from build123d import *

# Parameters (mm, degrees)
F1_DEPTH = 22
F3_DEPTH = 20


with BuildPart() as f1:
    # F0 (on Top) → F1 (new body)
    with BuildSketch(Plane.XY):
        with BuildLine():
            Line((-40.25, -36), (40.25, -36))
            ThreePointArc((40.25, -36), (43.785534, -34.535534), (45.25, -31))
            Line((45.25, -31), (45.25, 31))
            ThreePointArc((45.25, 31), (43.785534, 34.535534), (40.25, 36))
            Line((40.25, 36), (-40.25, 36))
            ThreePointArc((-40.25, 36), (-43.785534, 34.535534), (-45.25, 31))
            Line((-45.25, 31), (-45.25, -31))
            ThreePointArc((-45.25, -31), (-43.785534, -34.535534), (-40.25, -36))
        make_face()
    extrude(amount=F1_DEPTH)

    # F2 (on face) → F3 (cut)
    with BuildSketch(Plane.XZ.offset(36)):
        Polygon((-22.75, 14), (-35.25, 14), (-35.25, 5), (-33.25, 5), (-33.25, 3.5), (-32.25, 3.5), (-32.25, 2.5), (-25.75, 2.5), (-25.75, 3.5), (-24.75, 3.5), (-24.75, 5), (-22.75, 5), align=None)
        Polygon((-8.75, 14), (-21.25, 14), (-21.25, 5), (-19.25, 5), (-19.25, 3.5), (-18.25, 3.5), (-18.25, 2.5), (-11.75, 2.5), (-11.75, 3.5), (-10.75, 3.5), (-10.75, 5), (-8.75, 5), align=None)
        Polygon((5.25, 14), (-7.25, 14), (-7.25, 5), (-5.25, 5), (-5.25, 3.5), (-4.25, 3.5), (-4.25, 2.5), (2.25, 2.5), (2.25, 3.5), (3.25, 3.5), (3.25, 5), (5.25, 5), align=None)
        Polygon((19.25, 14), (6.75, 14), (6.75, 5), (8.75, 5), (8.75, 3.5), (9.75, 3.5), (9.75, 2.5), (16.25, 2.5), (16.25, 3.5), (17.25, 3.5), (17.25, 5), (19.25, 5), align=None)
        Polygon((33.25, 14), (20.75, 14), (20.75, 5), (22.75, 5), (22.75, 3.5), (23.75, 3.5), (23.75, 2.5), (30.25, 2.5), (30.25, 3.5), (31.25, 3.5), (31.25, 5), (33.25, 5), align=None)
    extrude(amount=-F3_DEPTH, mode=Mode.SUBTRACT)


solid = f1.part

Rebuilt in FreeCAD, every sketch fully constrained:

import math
import FreeCAD as App
import Part
import Sketcher


def add_polygon(sketch, points):
    """Adds a closed chain of lines whose ends are joined by coincident constraints."""
    first, n = sketch.GeometryCount, len(points)
    for a, b in zip(points, points[1:] + points[:1]):
        sketch.addGeometry(Part.LineSegment(App.Vector(*a, 0), App.Vector(*b, 0)), False)
    for i in range(n):
        sketch.addConstraint(Sketcher.Constraint("Coincident", first + i, 2, first + (i + 1) % n, 1))

doc = App.newDocument("Part")
body = doc.addObject("PartDesign::Body", "Body")

# Sketch on XY plane
sketch1 = body.newObject("Sketcher::SketchObject", "Sketch")
sketch1.AttachmentSupport = (doc.getObject("XY_Plane"), [""])
sketch1.MapMode = "FlatFace"
sketch1.addGeometry([
    Part.LineSegment(App.Vector(-40.2, -36, 0), App.Vector(40.2, -36, 0)),  # 0
    Part.ArcOfCircle(Part.Circle(App.Vector(40.3, -31, 0), App.Vector(0, 0, 1), 5), math.radians(-90), math.radians(0)),  # 1
    Part.LineSegment(App.Vector(45.2, -31, 0), App.Vector(45.2, 31, 0)),  # 2
    Part.ArcOfCircle(Part.Circle(App.Vector(40.3, 31, 0), App.Vector(0, 0, 1), 5), math.radians(0), math.radians(90)),  # 3
    Part.LineSegment(App.Vector(40.2, 36, 0), App.Vector(-40.2, 36, 0)),  # 4
    Part.ArcOfCircle(Part.Circle(App.Vector(-40.3, 31, 0), App.Vector(0, 0, 1), 5), math.radians(90), math.radians(180)),  # 5
    Part.LineSegment(App.Vector(-45.2, 31, 0), App.Vector(-45.2, -31, 0)),  # 6
    Part.ArcOfCircle(Part.Circle(App.Vector(-40.3, -31, 0), App.Vector(0, 0, 1), 5), math.radians(180), math.radians(270)),  # 7
], False)
sketch1.addConstraint([
    Sketcher.Constraint("Tangent", 0, 2, 1, 1),
    Sketcher.Constraint("Tangent", 1, 2, 2, 1),
    Sketcher.Constraint("Tangent", 2, 2, 3, 1),
    Sketcher.Constraint("Tangent", 3, 2, 4, 1),
    Sketcher.Constraint("Tangent", 4, 2, 5, 1),
    Sketcher.Constraint("Tangent", 5, 2, 6, 1),
    Sketcher.Constraint("Tangent", 6, 2, 7, 1),
    Sketcher.Constraint("Tangent", 7, 2, 0, 1),
    Sketcher.Constraint("Horizontal", 0),
    Sketcher.Constraint("Vertical", 2),
    Sketcher.Constraint("Horizontal", 4),
    Sketcher.Constraint("Vertical", 6),
    Sketcher.Constraint("Equal", 1, 3),
    Sketcher.Constraint("Equal", 3, 5),
    Sketcher.Constraint("Equal", 5, 7),
    Sketcher.Constraint("Symmetric", 1, 3, 5, 3, -1, 1),
    Sketcher.Constraint("Radius", 1, 5.0),
    Sketcher.Constraint("DistanceY", 2, 1, 2, 2, 62.0),
    Sketcher.Constraint("DistanceX", 0, 1, 0, 2, 80.5),
])
pad1 = body.newObject("PartDesign::Pad", "Pad")
pad1.Profile = sketch1
pad1.Length = 22

# Sketch on XZ plane
sketch2 = body.newObject("Sketcher::SketchObject", "Sketch001")
sketch2.AttachmentSupport = (doc.getObject("XZ_Plane"), [""])
sketch2.MapMode = "FlatFace"
sketch2.AttachmentOffset = App.Placement(App.Vector(0, 0, 36), App.Rotation())
add_polygon(sketch2, [(-22.8, 14), (-35.2, 14), (-35.2, 5), (-33.2, 5), (-33.2, 3.5), (-32.2, 3.5), (-32.2, 2.5), (-25.8, 2.5), (-25.8, 3.5), (-24.8, 3.5), (-24.8, 5), (-22.8, 5)])  # lines 0-11
add_polygon(sketch2, [(-8.8, 14), (-21.2, 14), (-21.2, 5), (-19.2, 5), (-19.2, 3.5), (-18.2, 3.5), (-18.2, 2.5), (-11.8, 2.5), (-11.8, 3.5), (-10.8, 3.5), (-10.8, 5), (-8.8, 5)])  # lines 12-23
add_polygon(sketch2, [(5.2, 14), (-7.2, 14), (-7.2, 5), (-5.2, 5), (-5.2, 3.5), (-4.2, 3.5), (-4.2, 2.5), (2.2, 2.5), (2.2, 3.5), (3.2, 3.5), (3.2, 5), (5.2, 5)])  # lines 24-35
add_polygon(sketch2, [(19.2, 14), (6.8, 14), (6.8, 5), (8.8, 5), (8.8, 3.5), (9.8, 3.5), (9.8, 2.5), (16.2, 2.5), (16.2, 3.5), (17.2, 3.5), (17.2, 5), (19.2, 5)])  # lines 36-47
add_polygon(sketch2, [(33.2, 14), (20.8, 14), (20.8, 5), (22.8, 5), (22.8, 3.5), (23.8, 3.5), (23.8, 2.5), (30.2, 2.5), (30.2, 3.5), (31.2, 3.5), (31.2, 5), (33.2, 5)])  # lines 48-59
sketch2.addConstraint([
    Sketcher.Constraint("Horizontal", 0),
    Sketcher.Constraint("Vertical", 1),
    Sketcher.Constraint("Horizontal", 2),
    Sketcher.Constraint("Vertical", 3),
    Sketcher.Constraint("Horizontal", 4),
    Sketcher.Constraint("Vertical", 5),
    Sketcher.Constraint("Horizontal", 6),
    Sketcher.Constraint("Vertical", 7),
    Sketcher.Constraint("Horizontal", 8),
    Sketcher.Constraint("Vertical", 9),
    Sketcher.Constraint("Horizontal", 10),
    Sketcher.Constraint("Vertical", 11),
    Sketcher.Constraint("Horizontal", 12),
    Sketcher.Constraint("Vertical", 13),
    Sketcher.Constraint("Horizontal", 14),
    Sketcher.Constraint("Vertical", 15),
    Sketcher.Constraint("Horizontal", 16),
    Sketcher.Constraint("Vertical", 17),
    Sketcher.Constraint("Horizontal", 18),
    Sketcher.Constraint("Vertical", 19),
    Sketcher.Constraint("Horizontal", 20),
    Sketcher.Constraint("Vertical", 21),
    Sketcher.Constraint("Horizontal", 22),
    Sketcher.Constraint("Vertical", 23),
    Sketcher.Constraint("Horizontal", 24),
    Sketcher.Constraint("Vertical", 25),
    Sketcher.Constraint("Horizontal", 26),
    Sketcher.Constraint("Vertical", 27),
    Sketcher.Constraint("Horizontal", 28),
    Sketcher.Constraint("Vertical", 29),
    Sketcher.Constraint("Horizontal", 30),
    Sketcher.Constraint("Vertical", 31),
    Sketcher.Constraint("Horizontal", 32),
    Sketcher.Constraint("Vertical", 33),
    Sketcher.Constraint("Horizontal", 34),
    Sketcher.Constraint("Vertical", 35),
    Sketcher.Constraint("Horizontal", 36),
    Sketcher.Constraint("Vertical", 37),
    Sketcher.Constraint("Horizontal", 38),
    Sketcher.Constraint("Vertical", 39),
    Sketcher.Constraint("Horizontal", 40),
    Sketcher.Constraint("Vertical", 41),
    Sketcher.Constraint("Horizontal", 42),
    Sketcher.Constraint("Vertical", 43),
    Sketcher.Constraint("Horizontal", 44),
    Sketcher.Constraint("Vertical", 45),
    Sketcher.Constraint("Horizontal", 46),
    Sketcher.Constraint("Vertical", 47),
    Sketcher.Constraint("Horizontal", 48),
    Sketcher.Constraint("Vertical", 49),
    Sketcher.Constraint("Horizontal", 50),
    Sketcher.Constraint("Vertical", 51),
    Sketcher.Constraint("Horizontal", 52),
    Sketcher.Constraint("Vertical", 53),
    Sketcher.Constraint("Horizontal", 54),
    Sketcher.Constraint("Vertical", 55),
    Sketcher.Constraint("Horizontal", 56),
    Sketcher.Constraint("Vertical", 57),
    Sketcher.Constraint("Horizontal", 58),
    Sketcher.Constraint("Vertical", 59),
    Sketcher.Constraint("Symmetric", 26, 2, 34, 2, -2),
    Sketcher.Constraint("Symmetric", 22, 2, 38, 2, -2),
    Sketcher.Constraint("Symmetric", 14, 2, 46, 2, -2),
    Sketcher.Constraint("Symmetric", 10, 2, 50, 2, -2),
    Sketcher.Constraint("Symmetric", 2, 2, 58, 2, -2),
    Sketcher.Constraint("Horizontal", 4, 2, 7, 2),
    Sketcher.Constraint("Horizontal", 2, 2, 9, 2),
    Sketcher.Constraint("Horizontal", 11, 2, 12, 2),
    Sketcher.Constraint("Horizontal", 10, 2, 13, 2),
    Sketcher.Constraint("Horizontal", 8, 2, 15, 2),
    Sketcher.Constraint("Horizontal", 6, 2, 17, 2),
    Sketcher.Constraint("Horizontal", 16, 2, 19, 2),
    Sketcher.Constraint("Horizontal", 14, 2, 21, 2),
    Sketcher.Constraint("Horizontal", 23, 2, 24, 2),
    Sketcher.Constraint("Horizontal", 22, 2, 25, 2),
    Sketcher.Constraint("Horizontal", 20, 2, 27, 2),
    Sketcher.Constraint("Horizontal", 18, 2, 29, 2),
    Sketcher.Constraint("Horizontal", 28, 2, 31, 2),
    Sketcher.Constraint("Horizontal", 35, 2, 36, 2),
    Sketcher.Constraint("Horizontal", 32, 2, 39, 2),
    Sketcher.Constraint("Horizontal", 30, 2, 41, 2),
    Sketcher.Constraint("Horizontal", 40, 2, 43, 2),
    Sketcher.Constraint("Horizontal", 47, 2, 48, 2),
    Sketcher.Constraint("Horizontal", 44, 2, 51, 2),
    Sketcher.Constraint("Horizontal", 42, 2, 53, 2),
    Sketcher.Constraint("Horizontal", 52, 2, 55, 2),
    Sketcher.Constraint("Equal", 4, 8),
    Sketcher.Constraint("Equal", 2, 10),
    Sketcher.Constraint("Equal", 0, 12),
    Sketcher.Constraint("Equal", 10, 14),
    Sketcher.Constraint("Equal", 8, 16),
    Sketcher.Constraint("Equal", 6, 18),
    Sketcher.Constraint("Equal", 16, 20),
    Sketcher.Constraint("Equal", 12, 24),
    Sketcher.Constraint("Equal", 22, 26),
    Sketcher.Constraint("Equal", 20, 28),
    Sketcher.Constraint("Equal", 18, 30),
    Sketcher.Constraint("Equal", 28, 32),
    Sketcher.Constraint("Equal", 24, 36),
    Sketcher.Constraint("Equal", 32, 40),
    Sketcher.Constraint("Equal", 30, 42),
    Sketcher.Constraint("Equal", 40, 44),
    Sketcher.Constraint("Equal", 36, 48),
    Sketcher.Constraint("Equal", 44, 52),
    Sketcher.Constraint("Equal", 42, 54),
    Sketcher.Constraint("Equal", 52, 56),
    Sketcher.Constraint("Equal", 56, 5),
    Sketcher.Constraint("DistanceX", 2, 1, 2, 2, 2.0),
    Sketcher.Constraint("DistanceX", 4, 1, 4, 2, 1.0),
    Sketcher.Constraint("DistanceY", 1, 2, 1, 1, 9.0),
    Sketcher.Constraint("DistanceX", 0, 2, 0, 1, 12.5),
    Sketcher.Constraint("DistanceY", 3, 2, 3, 1, 1.5),
    Sketcher.Constraint("DistanceY", -1, 1, 0, 2, 14.0),
    Sketcher.Constraint("DistanceX", 11, 2, 12, 2, 1.5),
    Sketcher.Constraint("DistanceX", 23, 2, 24, 2, 1.5),
])
pocket1 = body.newObject("PartDesign::Pocket", "Pocket")
pocket1.Profile = sketch2
pocket1.Length = 20

doc.recompute()
